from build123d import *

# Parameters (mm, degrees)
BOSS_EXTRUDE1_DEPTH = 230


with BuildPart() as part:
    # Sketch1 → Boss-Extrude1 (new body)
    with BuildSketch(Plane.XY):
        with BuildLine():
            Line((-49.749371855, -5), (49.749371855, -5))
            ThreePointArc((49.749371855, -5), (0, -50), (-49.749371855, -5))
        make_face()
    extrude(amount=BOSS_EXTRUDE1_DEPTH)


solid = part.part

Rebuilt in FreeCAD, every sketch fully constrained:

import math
import FreeCAD as App
import Part
import Sketcher
Q = App.Units.Quantity

doc = App.newDocument("Part")
body = doc.addObject("PartDesign::Body", "Body")

# Sketch on XY plane
sketch1 = doc.addObject("Sketcher::SketchObject", "Sketch")
body.addObject(sketch1)
sketch1.AttachmentSupport = (doc.XY_Plane, [""])
sketch1.MapMode = "FlatFace"
sketch1.addGeometry(Part.LineSegment(App.Vector(50, -5, 0), App.Vector(-50, -5, 0)), False)
sketch1.addGeometry(Part.ArcOfCircle(Part.Circle(App.Vector(0, 0, 0), App.Vector(0, 0, 1), 50), math.radians(-174), math.radians(-6)), False)
sketch1.addConstraint(Sketcher.Constraint("Coincident", 0, 1, 1, 2))
sketch1.addConstraint(Sketcher.Constraint("Coincident", 1, 1, 0, 2))
sketch1.addConstraint(Sketcher.Constraint("Horizontal", 0))
sketch1.addConstraint(Sketcher.Constraint("Coincident", 1, 3, -1, 1))
sketch1.addConstraint(Sketcher.Constraint("Radius", 1, Q("50 mm")))
sketch1.addConstraint(Sketcher.Constraint("DistanceY", 0, 1, -1, 1, Q("5 mm")))
pad1 = doc.addObject("PartDesign::Pad", "Pad")
body.addObject(pad1)
pad1.Profile = sketch1
pad1.Length = 230

doc.recompute()
